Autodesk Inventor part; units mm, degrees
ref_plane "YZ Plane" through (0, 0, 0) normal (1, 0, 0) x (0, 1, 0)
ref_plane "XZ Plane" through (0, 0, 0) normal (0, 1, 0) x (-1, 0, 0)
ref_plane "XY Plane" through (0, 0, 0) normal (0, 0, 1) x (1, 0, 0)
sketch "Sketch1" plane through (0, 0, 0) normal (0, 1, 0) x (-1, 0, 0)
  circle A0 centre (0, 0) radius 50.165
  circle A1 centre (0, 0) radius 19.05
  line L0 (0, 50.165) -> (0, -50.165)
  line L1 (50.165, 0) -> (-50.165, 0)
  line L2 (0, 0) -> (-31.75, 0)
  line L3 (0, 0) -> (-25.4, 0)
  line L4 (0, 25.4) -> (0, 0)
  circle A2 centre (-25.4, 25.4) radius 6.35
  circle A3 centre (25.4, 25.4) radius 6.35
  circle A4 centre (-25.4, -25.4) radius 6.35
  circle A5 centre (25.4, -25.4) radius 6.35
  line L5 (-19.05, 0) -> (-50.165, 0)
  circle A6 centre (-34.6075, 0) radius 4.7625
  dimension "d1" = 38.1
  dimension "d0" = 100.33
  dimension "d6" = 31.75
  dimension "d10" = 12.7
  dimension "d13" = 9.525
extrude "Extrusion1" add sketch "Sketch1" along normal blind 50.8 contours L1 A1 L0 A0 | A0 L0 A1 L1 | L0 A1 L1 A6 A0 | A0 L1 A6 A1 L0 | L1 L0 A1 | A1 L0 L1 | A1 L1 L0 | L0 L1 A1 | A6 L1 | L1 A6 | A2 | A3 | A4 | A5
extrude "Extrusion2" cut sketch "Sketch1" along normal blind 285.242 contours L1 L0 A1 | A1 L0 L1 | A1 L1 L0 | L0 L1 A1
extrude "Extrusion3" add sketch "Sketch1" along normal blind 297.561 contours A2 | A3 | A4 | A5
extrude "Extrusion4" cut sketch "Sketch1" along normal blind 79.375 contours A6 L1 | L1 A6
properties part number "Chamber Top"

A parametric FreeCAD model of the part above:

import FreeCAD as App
import Part
import Sketcher

V = App.Vector
Q = App.Units.Quantity

doc = App.newDocument("Part")
body = doc.addObject("PartDesign::Body", "Body")

# Sketch on XZ plane
sketch1 = doc.addObject("Sketcher::SketchObject", "Sketch")
body.addObject(sketch1)
sketch1.AttachmentSupport = (doc.XZ_Plane, [""])
sketch1.MapMode = "FlatFace"
sketch1.addGeometry(Part.Circle(V(0, 0, 0), V(0, 0, 1), 50.165), False)
sketch1.addConstraint([
    Sketcher.Constraint("Coincident", 0, 3, -1, 1),
    Sketcher.Constraint("Diameter", 0, Q("3.95 in")),
])
pad1 = doc.addObject("PartDesign::Pad", "Pad")
body.addObject(pad1)
pad1.Profile = sketch1
pad1.Length = Q("2 in")
pad1.Reversed = True

# Sketch on XZ plane
sketch2 = doc.addObject("Sketcher::SketchObject", "Sketch001")
body.addObject(sketch2)
sketch2.AttachmentSupport = (doc.XZ_Plane, [""])
sketch2.MapMode = "FlatFace"
sketch2.addGeometry(Part.Circle(V(0, 0, 0), V(0, 0, 1), 19.05), False)
sketch2.addConstraint([
    Sketcher.Constraint("Coincident", 0, 3, -1, 1),
    Sketcher.Constraint("Diameter", 0, Q("1.5 in")),
])
pocket1 = doc.addObject("PartDesign::Pocket", "Pocket")
body.addObject(pocket1)
pocket1.Profile = sketch2
pocket1.Length = Q("11.23 in")

# Sketch on XZ plane
sketch3 = doc.addObject("Sketcher::SketchObject", "Sketch002")
body.addObject(sketch3)
sketch3.AttachmentSupport = (doc.XZ_Plane, [""])
sketch3.MapMode = "FlatFace"
sketch3.addGeometry([
    Part.Circle(V(25.4, 25.4, 0), V(0, 0, 1), 6.35),
    Part.Circle(V(-25.4, 25.4, 0), V(0, 0, 1), 6.35),
    Part.Circle(V(25.4, -25.4, 0), V(0, 0, 1), 6.35),
    Part.Circle(V(-25.4, -25.4, 0), V(0, 0, 1), 6.35),
], False)
sketch3.addConstraint([
    Sketcher.Constraint("Equal", 0, 1),
    Sketcher.Constraint("Equal", 1, 2),
    Sketcher.Constraint("Equal", 2, 3),
    Sketcher.Constraint("Symmetric", 1, 3, 2, 3, -1, 1),
    Sketcher.Constraint("Symmetric", 0, 3, 3, 3, -1, 1),
    Sketcher.Constraint("Symmetric", 0, 3, 1, 3, -2),
    Sketcher.Constraint("Diameter", 0, Q("0.5 in")),
    Sketcher.Constraint("DistanceX", -1, 1, 0, 3, Q("1 in")),
    Sketcher.Constraint("DistanceY", -1, 1, 0, 3, Q("1 in")),
])
pad2 = doc.addObject("PartDesign::Pad", "Pad001")
body.addObject(pad2)
pad2.Profile = sketch3
pad2.Length = Q("11.715 in")
pad2.Reversed = True

# Sketch on XZ plane
sketch4 = doc.addObject("Sketcher::SketchObject", "Sketch003")
body.addObject(sketch4)
sketch4.AttachmentSupport = (doc.XZ_Plane, [""])
sketch4.MapMode = "FlatFace"
sketch4.addGeometry(Part.Circle(V(34.6075, 0, 0), V(0, 0, 1), 4.7625), False)
sketch4.addConstraint([
    Sketcher.Constraint("PointOnObject", 0, 3, -1),
    Sketcher.Constraint("Diameter", 0, Q("0.375 in")),
    Sketcher.Constraint("DistanceX", -1, 1, 0, 3, Q("1.3625 in")),
])
pocket2 = doc.addObject("PartDesign::Pocket", "Pocket001")
body.addObject(pocket2)
pocket2.Profile = sketch4
pocket2.Length = Q("3.125 in")

doc.recompute()
